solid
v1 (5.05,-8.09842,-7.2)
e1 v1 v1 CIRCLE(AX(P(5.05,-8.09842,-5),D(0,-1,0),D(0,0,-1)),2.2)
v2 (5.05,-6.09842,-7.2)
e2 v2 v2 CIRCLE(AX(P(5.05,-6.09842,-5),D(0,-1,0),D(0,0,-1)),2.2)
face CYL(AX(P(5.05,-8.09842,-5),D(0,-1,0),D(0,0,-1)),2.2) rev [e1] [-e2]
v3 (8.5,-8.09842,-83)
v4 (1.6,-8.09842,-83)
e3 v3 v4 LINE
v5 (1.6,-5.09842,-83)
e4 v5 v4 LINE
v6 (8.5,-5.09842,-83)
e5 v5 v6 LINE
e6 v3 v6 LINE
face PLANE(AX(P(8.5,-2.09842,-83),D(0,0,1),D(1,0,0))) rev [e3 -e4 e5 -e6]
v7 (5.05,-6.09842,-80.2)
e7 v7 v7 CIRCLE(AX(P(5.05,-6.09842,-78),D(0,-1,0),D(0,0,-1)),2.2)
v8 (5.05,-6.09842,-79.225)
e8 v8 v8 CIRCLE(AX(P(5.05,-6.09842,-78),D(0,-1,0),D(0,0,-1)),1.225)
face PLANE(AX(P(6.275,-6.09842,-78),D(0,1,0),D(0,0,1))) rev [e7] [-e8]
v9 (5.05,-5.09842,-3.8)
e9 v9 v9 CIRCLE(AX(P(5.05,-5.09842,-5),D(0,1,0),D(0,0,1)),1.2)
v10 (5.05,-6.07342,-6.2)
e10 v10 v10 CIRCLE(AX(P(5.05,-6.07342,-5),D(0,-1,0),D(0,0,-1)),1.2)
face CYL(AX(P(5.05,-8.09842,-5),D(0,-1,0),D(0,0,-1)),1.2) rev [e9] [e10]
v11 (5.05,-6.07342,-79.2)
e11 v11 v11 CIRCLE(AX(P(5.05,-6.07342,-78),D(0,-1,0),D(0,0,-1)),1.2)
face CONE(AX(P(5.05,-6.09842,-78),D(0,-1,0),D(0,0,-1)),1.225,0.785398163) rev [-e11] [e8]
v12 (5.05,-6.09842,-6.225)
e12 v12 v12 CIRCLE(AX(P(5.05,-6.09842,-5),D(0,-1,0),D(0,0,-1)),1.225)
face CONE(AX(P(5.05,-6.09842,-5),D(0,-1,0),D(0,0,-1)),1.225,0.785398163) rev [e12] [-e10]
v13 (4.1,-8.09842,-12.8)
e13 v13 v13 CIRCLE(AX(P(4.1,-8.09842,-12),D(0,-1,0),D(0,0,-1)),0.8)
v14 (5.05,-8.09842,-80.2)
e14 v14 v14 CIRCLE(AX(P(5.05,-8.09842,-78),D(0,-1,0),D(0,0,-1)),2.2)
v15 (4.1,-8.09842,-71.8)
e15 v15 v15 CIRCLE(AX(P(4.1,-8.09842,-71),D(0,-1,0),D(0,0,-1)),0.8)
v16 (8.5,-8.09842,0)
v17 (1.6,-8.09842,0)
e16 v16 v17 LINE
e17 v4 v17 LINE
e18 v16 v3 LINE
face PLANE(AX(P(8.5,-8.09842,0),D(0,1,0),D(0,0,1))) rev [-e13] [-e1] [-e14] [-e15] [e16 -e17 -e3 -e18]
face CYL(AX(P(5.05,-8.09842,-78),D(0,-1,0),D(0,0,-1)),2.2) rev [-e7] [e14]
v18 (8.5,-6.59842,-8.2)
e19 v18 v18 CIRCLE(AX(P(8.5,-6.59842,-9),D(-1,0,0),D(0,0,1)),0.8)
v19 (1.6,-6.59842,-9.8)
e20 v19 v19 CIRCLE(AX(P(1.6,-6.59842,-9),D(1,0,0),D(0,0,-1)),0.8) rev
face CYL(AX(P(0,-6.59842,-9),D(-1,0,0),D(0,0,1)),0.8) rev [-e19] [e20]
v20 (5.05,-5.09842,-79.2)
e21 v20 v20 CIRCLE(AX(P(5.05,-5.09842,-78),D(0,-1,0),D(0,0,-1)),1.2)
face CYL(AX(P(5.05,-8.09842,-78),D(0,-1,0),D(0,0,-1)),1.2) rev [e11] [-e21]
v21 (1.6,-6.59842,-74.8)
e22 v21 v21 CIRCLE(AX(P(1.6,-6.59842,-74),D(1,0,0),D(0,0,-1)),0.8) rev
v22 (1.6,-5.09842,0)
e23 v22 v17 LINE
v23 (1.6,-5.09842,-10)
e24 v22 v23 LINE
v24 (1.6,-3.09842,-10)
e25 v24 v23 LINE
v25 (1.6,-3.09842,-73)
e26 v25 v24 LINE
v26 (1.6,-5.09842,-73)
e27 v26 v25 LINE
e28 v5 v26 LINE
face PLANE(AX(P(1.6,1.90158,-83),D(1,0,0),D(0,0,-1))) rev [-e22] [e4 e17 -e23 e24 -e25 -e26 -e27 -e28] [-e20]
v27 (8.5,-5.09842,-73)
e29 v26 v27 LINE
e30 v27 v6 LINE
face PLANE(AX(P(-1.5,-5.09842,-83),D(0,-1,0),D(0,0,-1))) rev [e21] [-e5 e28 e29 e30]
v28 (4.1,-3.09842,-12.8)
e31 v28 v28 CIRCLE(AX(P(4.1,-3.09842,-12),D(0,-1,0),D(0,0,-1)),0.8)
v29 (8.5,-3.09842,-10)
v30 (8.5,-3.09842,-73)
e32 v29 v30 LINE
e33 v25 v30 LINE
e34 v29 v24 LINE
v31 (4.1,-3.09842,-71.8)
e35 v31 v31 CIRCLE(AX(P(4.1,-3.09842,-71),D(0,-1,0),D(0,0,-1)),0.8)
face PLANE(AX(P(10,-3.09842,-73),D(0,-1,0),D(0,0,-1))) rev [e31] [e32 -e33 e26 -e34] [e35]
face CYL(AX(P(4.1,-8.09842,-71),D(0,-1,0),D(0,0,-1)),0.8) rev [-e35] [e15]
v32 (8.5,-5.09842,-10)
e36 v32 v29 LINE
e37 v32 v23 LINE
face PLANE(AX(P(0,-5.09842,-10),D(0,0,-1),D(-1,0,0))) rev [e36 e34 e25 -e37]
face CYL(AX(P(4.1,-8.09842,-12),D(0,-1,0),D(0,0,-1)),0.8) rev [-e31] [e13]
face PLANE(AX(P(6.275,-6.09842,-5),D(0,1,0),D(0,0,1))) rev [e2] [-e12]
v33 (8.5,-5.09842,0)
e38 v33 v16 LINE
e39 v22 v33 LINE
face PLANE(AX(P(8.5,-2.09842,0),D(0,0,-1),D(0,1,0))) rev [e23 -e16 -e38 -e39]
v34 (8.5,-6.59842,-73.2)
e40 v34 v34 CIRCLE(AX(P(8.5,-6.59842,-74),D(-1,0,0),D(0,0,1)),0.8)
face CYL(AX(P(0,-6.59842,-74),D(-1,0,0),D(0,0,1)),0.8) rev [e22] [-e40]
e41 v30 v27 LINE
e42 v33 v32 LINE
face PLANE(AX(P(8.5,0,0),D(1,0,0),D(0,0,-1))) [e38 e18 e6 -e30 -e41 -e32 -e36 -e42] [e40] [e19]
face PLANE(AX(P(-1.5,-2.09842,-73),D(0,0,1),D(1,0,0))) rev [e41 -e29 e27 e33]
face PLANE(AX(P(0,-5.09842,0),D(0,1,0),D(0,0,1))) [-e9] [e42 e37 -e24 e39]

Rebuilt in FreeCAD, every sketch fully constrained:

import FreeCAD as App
import Part
import Sketcher
Q = App.Units.Quantity

doc = App.newDocument("Part")
params = doc.addObject("Spreadsheet::Sheet", "Params")
for row, (alias, value) in enumerate([
    ("sketch1_width", "6 mm"),
    ("sketch1_height", "83 mm"),
    ("pad1_length", "8.5 mm"),
    ("sketch2_height", "10 mm"),
    ("sketch2_width", "8.5 mm"),
    ("pocket1_length", "3 mm"),
    ("sketch3_width", "3 mm"),
    ("sketch3_height", "10 mm"),
    ("pocket2_length", "10 mm"),
    ("sketch4_width", "1 mm"),
    ("sketch4_height", "63 mm"),
    ("pocket3_length", "10 mm"),
    ("sketch5_diameter", "1.6 mm"),
    ("hole_diameter", "1.6 mm"),
    ("sketch6_height", "83 mm"),
    ("sketch6_width", "1.6 mm"),
    ("pocket4_length", "10 mm"),
    ("sketch7_width", "5 mm"),
    ("sketch7_width2", "2 mm"),
    ("sketch7_height", "2.2 mm"),
    ("sketch7_height2", "1.2 mm"),
    ("groove_angle", "360 deg"),
    ("linearpattern_pitch", "73 mm"),
    ("sketch8_diameter", "1.6 mm"),
    ("hole2_diameter", "1.6 mm"),
], start=1):
    params.set(f"A{row}", alias)
    params.set(f"B{row}", "=" + value)
    params.setAlias(f"B{row}", alias)

body = doc.addObject("PartDesign::Body", "Body")

# Sketch on YZ plane
sketch1 = body.newObject("Sketcher::SketchObject", "Sketch")
sketch1.AttachmentSupport = (doc.getObject("YZ_Plane"), [""])
sketch1.MapMode = "FlatFace"
sketch1.addGeometry([
    Part.LineSegment(App.Vector(-2.09842, 0, 0), App.Vector(-8.09842, 0, 0)),
    Part.LineSegment(App.Vector(-8.09842, 0, 0), App.Vector(-8.09842, -83, 0)),
    Part.LineSegment(App.Vector(-8.09842, -83, 0), App.Vector(-2.09842, -83, 0)),
    Part.LineSegment(App.Vector(-2.09842, -83, 0), App.Vector(-2.09842, 0, 0)),
], False)
sketch1.addConstraint([
    Sketcher.Constraint("Coincident", 0, 2, 1, 1),
    Sketcher.Constraint("Coincident", 1, 2, 2, 1),
    Sketcher.Constraint("Coincident", 2, 2, 3, 1),
    Sketcher.Constraint("Coincident", 3, 2, 0, 1),
    Sketcher.Constraint("Horizontal", 0),
    Sketcher.Constraint("Vertical", 1),
    Sketcher.Constraint("Horizontal", 2),
    Sketcher.Constraint("Vertical", 3),
    Sketcher.Constraint("PointOnObject", 0, 2, -1),
    Sketcher.Constraint("DistanceX", 0, 2, 0, 1, Q("6 mm")),
    Sketcher.Constraint("DistanceY", 1, 2, 1, 1, Q("83 mm")),
    Sketcher.Constraint("DistanceX", 0, 2, -1, 1, Q("8.09842 mm")),
])
sketch1.setExpression("Constraints[9]", "Params.sketch1_width")
sketch1.setExpression("Constraints[10]", "Params.sketch1_height")
pad1 = body.newObject("PartDesign::Pad", "Pad")
pad1.Profile = sketch1
pad1.setExpression("Length", "Params.pad1_length")

# Sketch on XZ plane
sketch2 = body.newObject("Sketcher::SketchObject", "Sketch001")
sketch2.AttachmentSupport = (doc.getObject("XZ_Plane"), [""])
sketch2.MapMode = "FlatFace"
sketch2.AttachmentOffset = App.Placement(App.Vector(0, 0, 2.09842), App.Rotation())
sketch2.addGeometry([
    Part.LineSegment(App.Vector(0, -10, 0), App.Vector(0, 0, 0)),
    Part.LineSegment(App.Vector(0, 0, 0), App.Vector(8.5, 0, 0)),
    Part.LineSegment(App.Vector(8.5, 0, 0), App.Vector(8.5, -10, 0)),
    Part.LineSegment(App.Vector(8.5, -10, 0), App.Vector(0, -10, 0)),
], False)
sketch2.addConstraint([
    Sketcher.Constraint("Coincident", 0, 2, 1, 1),
    Sketcher.Constraint("Coincident", 1, 2, 2, 1),
    Sketcher.Constraint("Coincident", 2, 2, 3, 1),
    Sketcher.Constraint("Coincident", 3, 2, 0, 1),
    Sketcher.Constraint("Vertical", 0),
    Sketcher.Constraint("Horizontal", 1),
    Sketcher.Constraint("Vertical", 2),
    Sketcher.Constraint("Horizontal", 3),
    Sketcher.Constraint("Coincident", 0, 2, -1, 1),
    Sketcher.Constraint("DistanceY", 0, 1, 0, 2, Q("10 mm")),
    Sketcher.Constraint("DistanceX", 1, 1, 1, 2, Q("8.5 mm")),
])
sketch2.setExpression("Constraints[9]", "Params.sketch2_height")
sketch2.setExpression("Constraints[10]", "Params.sketch2_width")
pocket1 = body.newObject("PartDesign::Pocket", "Pocket")
pocket1.Profile = sketch2
pocket1.setExpression("Length", "Params.pocket1_length")
pocket1.Reversed = True

# Sketch on YZ plane
sketch3 = body.newObject("Sketcher::SketchObject", "Sketch002")
sketch3.AttachmentSupport = (doc.getObject("YZ_Plane"), [""])
sketch3.MapMode = "FlatFace"
sketch3.AttachmentOffset = App.Placement(App.Vector(0, 0, 8.5), App.Rotation())
sketch3.addGeometry([
    Part.LineSegment(App.Vector(-2.09842, -73, 0), App.Vector(-5.09842, -73, 0)),
    Part.LineSegment(App.Vector(-5.09842, -73, 0), App.Vector(-5.09842, -83, 0)),
    Part.LineSegment(App.Vector(-5.09842, -83, 0), App.Vector(-2.09842, -83, 0)),
    Part.LineSegment(App.Vector(-2.09842, -83, 0), App.Vector(-2.09842, -73, 0)),
], False)
sketch3.addConstraint([
    Sketcher.Constraint("Coincident", 0, 2, 1, 1),
    Sketcher.Constraint("Coincident", 1, 2, 2, 1),
    Sketcher.Constraint("Coincident", 2, 2, 3, 1),
    Sketcher.Constraint("Coincident", 3, 2, 0, 1),
    Sketcher.Constraint("Horizontal", 0),
    Sketcher.Constraint("Vertical", 1),
    Sketcher.Constraint("Horizontal", 2),
    Sketcher.Constraint("Vertical", 3),
    Sketcher.Constraint("DistanceX", 0, 2, 0, 1, Q("3 mm")),
    Sketcher.Constraint("DistanceY", 1, 2, 1, 1, Q("10 mm")),
    Sketcher.Constraint("DistanceY", 0, 2, -1, 1, Q("73 mm")),
    Sketcher.Constraint("DistanceX", 0, 2, -1, 1, Q("5.09842 mm")),
])
sketch3.setExpression("Constraints[8]", "Params.sketch3_width")
sketch3.setExpression("Constraints[9]", "Params.sketch3_height")
pocket2 = body.newObject("PartDesign::Pocket", "Pocket001")
pocket2.Profile = sketch3
pocket2.setExpression("Length", "Params.pocket2_length")

# Sketch on YZ plane
sketch4 = body.newObject("Sketcher::SketchObject", "Sketch003")
sketch4.AttachmentSupport = (doc.getObject("YZ_Plane"), [""])
sketch4.MapMode = "FlatFace"
sketch4.addGeometry([
    Part.LineSegment(App.Vector(-2.09842, -73, 0), App.Vector(-3.09842, -73, 0)),
    Part.LineSegment(App.Vector(-3.09842, -73, 0), App.Vector(-3.09842, -10, 0)),
    Part.LineSegment(App.Vector(-3.09842, -10, 0), App.Vector(-2.09842, -10, 0)),
    Part.LineSegment(App.Vector(-2.09842, -10, 0), App.Vector(-2.09842, -73, 0)),
], False)
sketch4.addConstraint([
    Sketcher.Constraint("Coincident", 0, 2, 1, 1),
    Sketcher.Constraint("Coincident", 1, 2, 2, 1),
    Sketcher.Constraint("Coincident", 2, 2, 3, 1),
    Sketcher.Constraint("Coincident", 3, 2, 0, 1),
    Sketcher.Constraint("Horizontal", 0),
    Sketcher.Constraint("Vertical", 1),
    Sketcher.Constraint("Horizontal", 2),
    Sketcher.Constraint("Vertical", 3),
    Sketcher.Constraint("DistanceX", 0, 2, 0, 1, Q("1 mm")),
    Sketcher.Constraint("DistanceY", 1, 1, 1, 2, Q("63 mm")),
    Sketcher.Constraint("DistanceY", 0, 2, -1, 1, Q("73 mm")),
    Sketcher.Constraint("DistanceX", 0, 2, -1, 1, Q("3.09842 mm")),
])
sketch4.setExpression("Constraints[8]", "Params.sketch4_width")
sketch4.setExpression("Constraints[9]", "Params.sketch4_height")
pocket3 = body.newObject("PartDesign::Pocket", "Pocket002")
pocket3.Profile = sketch4
pocket3.setExpression("Length", "Params.pocket3_length")
pocket3.Reversed = True

# Sketch on YZ plane
sketch5 = body.newObject("Sketcher::SketchObject", "Sketch004")
sketch5.AttachmentSupport = (doc.getObject("YZ_Plane"), [""])
sketch5.MapMode = "FlatFace"
sketch5.addGeometry([
    Part.Circle(App.Vector(-6.59842, -74, 0), App.Vector(0, 0, 1), 0.8),
    Part.Circle(App.Vector(-6.59842, -9, 0), App.Vector(0, 0, 1), 0.8),
], False)
sketch5.addConstraint([
    Sketcher.Constraint("Equal", 0, 1),
    Sketcher.Constraint("Vertical", 0, 3, 1, 3),
    Sketcher.Constraint("Diameter", 0, Q("1.6 mm")),
    Sketcher.Constraint("DistanceY", 0, 3, -1, 1, Q("74 mm")),
    Sketcher.Constraint("DistanceY", 1, 3, -1, 1, Q("9 mm")),
    Sketcher.Constraint("DistanceX", 0, 3, -1, 1, Q("6.59842 mm")),
])
sketch5.setExpression("Constraints[2]", "Params.sketch5_diameter")
doc.recompute()
hole = body.newObject("PartDesign::Hole", "Hole")
hole.Profile = sketch5
hole.ThreadType = "None"
hole.setExpression("Diameter", "Params.hole_diameter")
hole.DepthType = "ThroughAll"
hole.Reversed = True

# Sketch on XZ plane
sketch6 = body.newObject("Sketcher::SketchObject", "Sketch005")
sketch6.AttachmentSupport = (doc.getObject("XZ_Plane"), [""])
sketch6.MapMode = "FlatFace"
sketch6.AttachmentOffset = App.Placement(App.Vector(0, 0, 8.09842), App.Rotation())
sketch6.addGeometry([
    Part.LineSegment(App.Vector(0, 0, 0), App.Vector(0, -83, 0)),
    Part.LineSegment(App.Vector(0, -83, 0), App.Vector(1.6, -83, 0)),
    Part.LineSegment(App.Vector(1.6, -83, 0), App.Vector(1.6, 0, 0)),
    Part.LineSegment(App.Vector(1.6, 0, 0), App.Vector(0, 0, 0)),
], False)
sketch6.addConstraint([
    Sketcher.Constraint("Coincident", 0, 2, 1, 1),
    Sketcher.Constraint("Coincident", 1, 2, 2, 1),
    Sketcher.Constraint("Coincident", 2, 2, 3, 1),
    Sketcher.Constraint("Coincident", 3, 2, 0, 1),
    Sketcher.Constraint("Vertical", 0),
    Sketcher.Constraint("Horizontal", 1),
    Sketcher.Constraint("Vertical", 2),
    Sketcher.Constraint("Horizontal", 3),
    Sketcher.Constraint("Coincident", 3, 2, -1, 1),
    Sketcher.Constraint("DistanceY", 0, 2, 0, 1, Q("83 mm")),
    Sketcher.Constraint("DistanceX", 1, 1, 1, 2, Q("1.6 mm")),
])
sketch6.setExpression("Constraints[9]", "Params.sketch6_height")
sketch6.setExpression("Constraints[10]", "Params.sketch6_width")
pocket4 = body.newObject("PartDesign::Pocket", "Pocket003")
pocket4.Profile = sketch6
pocket4.setExpression("Length", "Params.pocket4_length")

# Sketch on YZ plane
sketch7 = body.newObject("Sketcher::SketchObject", "Sketch006")
sketch7.AttachmentSupport = (doc.getObject("YZ_Plane"), [""])
sketch7.MapMode = "FlatFace"
sketch7.AttachmentOffset = App.Placement(App.Vector(0, 0, 5.05), App.Rotation())
sketch7.addGeometry([
    Part.LineSegment(App.Vector(-3.09842, -5, 0), App.Vector(-8.09842, -5, 0)),  # 0
    Part.LineSegment(App.Vector(-8.09842, -5, 0), App.Vector(-8.09842, -7.2, 0)),  # 1
    Part.LineSegment(App.Vector(-8.09842, -7.2, 0), App.Vector(-6.09842, -7.2, 0)),  # 2
    Part.LineSegment(App.Vector(-6.09842, -7.2, 0), App.Vector(-6.09842, -6.225, 0)),  # 3
    Part.LineSegment(App.Vector(-6.09842, -6.225, 0), App.Vector(-6.07342, -6.2, 0)),  # 4
    Part.LineSegment(App.Vector(-6.07342, -6.2, 0), App.Vector(-3.09842, -6.2, 0)),  # 5
    Part.LineSegment(App.Vector(-3.09842, -6.2, 0), App.Vector(-3.09842, -5, 0)),  # 6
], False)
sketch7.addGeometry(Part.LineSegment(App.Vector(-8.09842, -5, 0), App.Vector(-3.09842, -5, 0)), True)  # axis
sketch7.addConstraint([
    Sketcher.Constraint("Coincident", 0, 2, 1, 1),
    Sketcher.Constraint("Coincident", 1, 2, 2, 1),
    Sketcher.Constraint("Coincident", 2, 2, 3, 1),
    Sketcher.Constraint("Coincident", 3, 2, 4, 1),
    Sketcher.Constraint("Coincident", 4, 2, 5, 1),
    Sketcher.Constraint("Coincident", 5, 2, 6, 1),
    Sketcher.Constraint("Coincident", 6, 2, 0, 1),
    Sketcher.Constraint("Horizontal", 0),
    Sketcher.Constraint("Vertical", 1),
    Sketcher.Constraint("Horizontal", 2),
    Sketcher.Constraint("Vertical", 3),
    Sketcher.Constraint("Horizontal", 5),
    Sketcher.Constraint("Vertical", 6),
    Sketcher.Constraint("Horizontal", 7),
    Sketcher.Constraint("Coincident", 7, 1, 0, 2),
    Sketcher.Constraint("Vertical", 5, 2, 7, 2),
    Sketcher.Constraint("DistanceX", 0, 2, 0, 1, Q("5 mm")),
    Sketcher.Constraint("DistanceX", 2, 1, 2, 2, Q("2 mm")),
    Sketcher.Constraint("Angle", 4, Q("45 deg")),
    Sketcher.Constraint("DistanceY", 1, 2, 1, 1, Q("2.2 mm")),
    Sketcher.Constraint("DistanceY", 6, 1, 6, 2, Q("1.2 mm")),
    Sketcher.Constraint("DistanceY", 0, 2, -1, 1, Q("5 mm")),
    Sketcher.Constraint("DistanceX", 5, 1, 5, 2, Q("2.975 mm")),
    Sketcher.Constraint("DistanceX", 0, 2, -1, 1, Q("8.09842 mm")),
])
sketch7.setExpression("Constraints[16]", "Params.sketch7_width")
sketch7.setExpression("Constraints[17]", "Params.sketch7_width2")
sketch7.setExpression("Constraints[19]", "Params.sketch7_height")
sketch7.setExpression("Constraints[20]", "Params.sketch7_height2")
groove = body.newObject("PartDesign::Groove", "Groove")
groove.Profile = sketch7
groove.ReferenceAxis = (sketch7, ["Axis0"])
groove.setExpression("Angle", "Params.groove_angle")
doc.recompute()

linearpattern = body.newObject("PartDesign::LinearPattern", "LinearPattern")
linearpattern.Originals = [groove]
linearpattern.Direction = (doc.getObject("Z_Axis"), [""])
linearpattern.Mode = "offset"
linearpattern.setExpression("Offset", "Params.linearpattern_pitch")
linearpattern.Occurrences = 2
linearpattern.Reversed = True
body.Tip = linearpattern

# Sketch on XZ plane
sketch8 = body.newObject("Sketcher::SketchObject", "Sketch007")
sketch8.AttachmentSupport = (doc.getObject("XZ_Plane"), [""])
sketch8.MapMode = "FlatFace"
sketch8.AttachmentOffset = App.Placement(App.Vector(0, 0, 8.09842), App.Rotation())
sketch8.addGeometry([
    Part.Circle(App.Vector(4.1, -71, 0), App.Vector(0, 0, 1), 0.8),
    Part.Circle(App.Vector(4.1, -12, 0), App.Vector(0, 0, 1), 0.8),
], False)
sketch8.addConstraint([
    Sketcher.Constraint("Equal", 0, 1),
    Sketcher.Constraint("Vertical", 0, 3, 1, 3),
    Sketcher.Constraint("Diameter", 0, Q("1.6 mm")),
    Sketcher.Constraint("DistanceY", 0, 3, -1, 1, Q("71 mm")),
    Sketcher.Constraint("DistanceY", 1, 3, -1, 1, Q("12 mm")),
    Sketcher.Constraint("DistanceX", -1, 1, 0, 3, Q("4.1 mm")),
])
sketch8.setExpression("Constraints[2]", "Params.sketch8_diameter")
doc.recompute()
hole2 = body.newObject("PartDesign::Hole", "Hole001")
hole2.Profile = sketch8
hole2.ThreadType = "None"
hole2.setExpression("Diameter", "Params.hole2_diameter")
hole2.DepthType = "ThroughAll"

doc.recompute()
